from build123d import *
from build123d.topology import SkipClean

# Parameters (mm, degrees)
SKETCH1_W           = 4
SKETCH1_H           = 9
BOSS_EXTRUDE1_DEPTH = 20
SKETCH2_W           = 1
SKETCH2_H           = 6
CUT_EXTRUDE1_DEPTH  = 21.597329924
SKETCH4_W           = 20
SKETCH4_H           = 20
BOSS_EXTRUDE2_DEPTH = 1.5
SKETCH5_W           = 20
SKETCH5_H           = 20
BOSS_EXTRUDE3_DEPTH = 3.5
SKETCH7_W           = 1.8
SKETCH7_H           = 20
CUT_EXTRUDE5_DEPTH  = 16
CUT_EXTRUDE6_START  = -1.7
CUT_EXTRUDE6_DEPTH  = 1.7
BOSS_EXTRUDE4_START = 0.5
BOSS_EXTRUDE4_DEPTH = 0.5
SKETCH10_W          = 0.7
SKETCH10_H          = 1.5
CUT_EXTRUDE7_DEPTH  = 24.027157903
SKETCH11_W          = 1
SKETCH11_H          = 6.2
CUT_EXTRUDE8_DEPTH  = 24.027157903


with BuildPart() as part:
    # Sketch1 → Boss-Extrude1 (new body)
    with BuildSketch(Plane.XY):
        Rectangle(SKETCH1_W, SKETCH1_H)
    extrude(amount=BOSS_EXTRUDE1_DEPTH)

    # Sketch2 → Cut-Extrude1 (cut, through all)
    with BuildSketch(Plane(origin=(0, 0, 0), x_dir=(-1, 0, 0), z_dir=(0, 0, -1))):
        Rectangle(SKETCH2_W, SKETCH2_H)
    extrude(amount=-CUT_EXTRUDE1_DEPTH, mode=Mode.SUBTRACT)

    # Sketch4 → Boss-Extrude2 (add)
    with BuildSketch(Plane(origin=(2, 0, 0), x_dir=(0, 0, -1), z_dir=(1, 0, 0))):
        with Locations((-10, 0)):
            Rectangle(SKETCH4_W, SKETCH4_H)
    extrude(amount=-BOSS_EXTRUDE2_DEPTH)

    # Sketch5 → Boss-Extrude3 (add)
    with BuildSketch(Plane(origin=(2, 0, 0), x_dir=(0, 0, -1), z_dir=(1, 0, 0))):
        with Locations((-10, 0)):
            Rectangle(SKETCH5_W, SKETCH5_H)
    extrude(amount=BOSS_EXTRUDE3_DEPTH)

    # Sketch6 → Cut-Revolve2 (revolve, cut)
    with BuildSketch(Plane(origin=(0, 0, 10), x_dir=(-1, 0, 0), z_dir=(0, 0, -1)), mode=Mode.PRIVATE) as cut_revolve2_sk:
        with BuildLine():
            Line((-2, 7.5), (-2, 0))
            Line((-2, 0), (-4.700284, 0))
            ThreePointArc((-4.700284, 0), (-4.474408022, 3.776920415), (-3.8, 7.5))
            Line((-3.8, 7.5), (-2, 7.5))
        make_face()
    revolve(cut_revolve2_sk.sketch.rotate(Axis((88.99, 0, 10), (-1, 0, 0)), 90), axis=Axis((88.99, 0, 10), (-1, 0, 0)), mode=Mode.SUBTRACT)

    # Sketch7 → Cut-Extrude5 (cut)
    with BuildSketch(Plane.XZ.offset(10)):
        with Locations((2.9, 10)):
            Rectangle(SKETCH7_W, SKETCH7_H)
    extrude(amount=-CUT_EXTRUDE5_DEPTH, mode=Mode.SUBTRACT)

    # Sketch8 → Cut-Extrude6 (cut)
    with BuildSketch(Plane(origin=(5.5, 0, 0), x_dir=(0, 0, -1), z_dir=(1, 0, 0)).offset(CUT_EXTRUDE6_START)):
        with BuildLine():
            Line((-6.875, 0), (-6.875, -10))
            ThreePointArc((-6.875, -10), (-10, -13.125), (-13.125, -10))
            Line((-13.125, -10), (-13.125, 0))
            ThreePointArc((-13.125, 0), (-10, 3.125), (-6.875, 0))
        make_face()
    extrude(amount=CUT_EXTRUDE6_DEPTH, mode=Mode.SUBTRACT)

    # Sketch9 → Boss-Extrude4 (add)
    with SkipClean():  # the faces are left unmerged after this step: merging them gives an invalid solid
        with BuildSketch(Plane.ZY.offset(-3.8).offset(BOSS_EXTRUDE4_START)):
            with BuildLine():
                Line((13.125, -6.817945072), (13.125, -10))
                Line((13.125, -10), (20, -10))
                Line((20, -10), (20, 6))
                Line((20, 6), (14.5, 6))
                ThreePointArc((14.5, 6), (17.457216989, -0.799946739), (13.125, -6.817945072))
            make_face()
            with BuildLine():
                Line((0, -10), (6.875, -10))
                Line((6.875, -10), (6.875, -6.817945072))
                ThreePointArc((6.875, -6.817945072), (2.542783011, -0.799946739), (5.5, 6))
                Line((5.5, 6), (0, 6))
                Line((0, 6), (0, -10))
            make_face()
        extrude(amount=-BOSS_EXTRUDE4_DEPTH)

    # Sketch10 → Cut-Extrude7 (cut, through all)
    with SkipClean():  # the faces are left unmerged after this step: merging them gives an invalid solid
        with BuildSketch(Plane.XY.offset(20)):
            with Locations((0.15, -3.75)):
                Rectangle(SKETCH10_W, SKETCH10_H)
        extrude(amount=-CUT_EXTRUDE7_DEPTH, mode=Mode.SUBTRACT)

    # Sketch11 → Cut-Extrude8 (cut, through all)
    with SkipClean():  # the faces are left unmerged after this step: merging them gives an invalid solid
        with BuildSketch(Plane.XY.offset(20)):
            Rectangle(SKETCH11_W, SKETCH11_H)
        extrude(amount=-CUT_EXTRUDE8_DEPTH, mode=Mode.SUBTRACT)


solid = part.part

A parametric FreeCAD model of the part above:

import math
import FreeCAD as App
import Part
import Sketcher

doc = App.newDocument("Part")
params = doc.addObject("Spreadsheet::Sheet", "Params")
for row, (alias, value) in enumerate([
    ("sketch1_width", "4 mm"),
    ("sketch1_height", "9 mm"),
    ("pad1_length", "20 mm"),
    ("sketch2_width", "1 mm"),
    ("sketch2_height", "6 mm"),
    ("sketch3_width", "20 mm"),
    ("pad2_length", "1.5 mm"),
    ("sketch4_width", "20 mm"),
    ("pad3_length", "3.5 mm"),
    ("sketch5_width", "1.8 mm"),
    ("sketch5_height", "7.5 mm"),
    ("groove_angle", "360 deg"),
    ("sketch6_height", "20 mm"),
    ("sketch6_width", "1.8 mm"),
    ("pocket2_length", "16 mm"),
    ("sketch7_width", "10 mm"),
    ("pocket3_length", "1.7 mm"),
    ("sketch8_radius", "7.5 mm"),
    ("sketch8_width", "16 mm"),
    ("sketch8_height", "5.5 mm"),
    ("pad4_length", "0.5 mm"),
    ("sketch9_width", "0.7 mm"),
    ("sketch9_height", "1.5 mm"),
    ("sketch10_width", "1 mm"),
    ("sketch10_height", "6.2 mm"),
], start=1):
    params.set(f"A{row}", alias)
    params.set(f"B{row}", "=" + value)
    params.setAlias(f"B{row}", alias)

body = doc.addObject("PartDesign::Body", "Body")

# Sketch on XY plane
sketch1 = body.newObject("Sketcher::SketchObject", "Sketch")
sketch1.AttachmentSupport = (doc.getObject("XY_Plane"), [""])
sketch1.MapMode = "FlatFace"
sketch1.addGeometry([
    Part.LineSegment(App.Vector(-2, 4.5, 0), App.Vector(-2, -4.5, 0)),
    Part.LineSegment(App.Vector(-2, -4.5, 0), App.Vector(2, -4.5, 0)),
    Part.LineSegment(App.Vector(2, -4.5, 0), App.Vector(2, 4.5, 0)),
    Part.LineSegment(App.Vector(2, 4.5, 0), App.Vector(-2, 4.5, 0)),
], False)
sketch1.addConstraint([
    Sketcher.Constraint("Coincident", 0, 2, 1, 1),
    Sketcher.Constraint("Coincident", 1, 2, 2, 1),
    Sketcher.Constraint("Coincident", 2, 2, 3, 1),
    Sketcher.Constraint("Coincident", 3, 2, 0, 1),
    Sketcher.Constraint("Vertical", 0),
    Sketcher.Constraint("Horizontal", 1),
    Sketcher.Constraint("Vertical", 2),
    Sketcher.Constraint("Horizontal", 3),
    Sketcher.Constraint("Symmetric", 0, 2, 2, 2, -1, 1),
    Sketcher.Constraint("DistanceX", 1, 1, 1, 2, 4.0),
    Sketcher.Constraint("DistanceY", 0, 2, 0, 1, 9.0),
])
sketch1.setExpression("Constraints[9]", "Params.sketch1_width")
sketch1.setExpression("Constraints[10]", "Params.sketch1_height")
pad1 = body.newObject("PartDesign::Pad", "Pad")
pad1.Profile = sketch1
pad1.setExpression("Length", "Params.pad1_length")

# Sketch on XY plane
sketch2 = body.newObject("Sketcher::SketchObject", "Sketch001")
sketch2.AttachmentSupport = (doc.getObject("XY_Plane"), [""])
sketch2.MapMode = "FlatFace"
sketch2.addGeometry([
    Part.LineSegment(App.Vector(0.5, 3, 0), App.Vector(0.5, -3, 0)),
    Part.LineSegment(App.Vector(0.5, -3, 0), App.Vector(-0.5, -3, 0)),
    Part.LineSegment(App.Vector(-0.5, -3, 0), App.Vector(-0.5, 3, 0)),
    Part.LineSegment(App.Vector(-0.5, 3, 0), App.Vector(0.5, 3, 0)),
], False)
sketch2.addConstraint([
    Sketcher.Constraint("Coincident", 0, 2, 1, 1),
    Sketcher.Constraint("Coincident", 1, 2, 2, 1),
    Sketcher.Constraint("Coincident", 2, 2, 3, 1),
    Sketcher.Constraint("Coincident", 3, 2, 0, 1),
    Sketcher.Constraint("Vertical", 0),
    Sketcher.Constraint("Horizontal", 1),
    Sketcher.Constraint("Vertical", 2),
    Sketcher.Constraint("Horizontal", 3),
    Sketcher.Constraint("Symmetric", 0, 2, 2, 2, -1, 1),
    Sketcher.Constraint("DistanceX", 1, 2, 1, 1, 1.0),
    Sketcher.Constraint("DistanceY", 0, 2, 0, 1, 6.0),
])
sketch2.setExpression("Constraints[9]", "Params.sketch2_width")
sketch2.setExpression("Constraints[10]", "Params.sketch2_height")
pocket1 = body.newObject("PartDesign::Pocket", "Pocket")
pocket1.Profile = sketch2
pocket1.Type = "ThroughAll"
pocket1.Reversed = True

# Sketch on YZ plane
sketch3 = body.newObject("Sketcher::SketchObject", "Sketch002")
sketch3.AttachmentSupport = (doc.getObject("YZ_Plane"), [""])
sketch3.MapMode = "FlatFace"
sketch3.AttachmentOffset = App.Placement(App.Vector(0, 0, 2), App.Rotation())
sketch3.addGeometry([
    Part.LineSegment(App.Vector(10, 20, 0), App.Vector(-10, 20, 0)),
    Part.LineSegment(App.Vector(-10, 20, 0), App.Vector(-10, 0, 0)),
    Part.LineSegment(App.Vector(-10, 0, 0), App.Vector(10, 0, 0)),
    Part.LineSegment(App.Vector(10, 0, 0), App.Vector(10, 20, 0)),
], False)
sketch3.addConstraint([
    Sketcher.Constraint("Coincident", 0, 2, 1, 1),
    Sketcher.Constraint("Coincident", 1, 2, 2, 1),
    Sketcher.Constraint("Coincident", 2, 2, 3, 1),
    Sketcher.Constraint("Coincident", 3, 2, 0, 1),
    Sketcher.Constraint("Horizontal", 0),
    Sketcher.Constraint("Vertical", 1),
    Sketcher.Constraint("Horizontal", 2),
    Sketcher.Constraint("Vertical", 3),
    Sketcher.Constraint("Symmetric", 1, 2, 2, 2, -1, 1),
    Sketcher.Constraint("Equal", 2, 1),
    Sketcher.Constraint("DistanceX", 0, 2, 0, 1, 20.0),
])
sketch3.setExpression("Constraints[10]", "Params.sketch3_width")
pad2 = body.newObject("PartDesign::Pad", "Pad001")
pad2.Profile = sketch3
pad2.setExpression("Length", "Params.pad2_length")
pad2.Reversed = True

# Sketch on YZ plane
sketch4 = body.newObject("Sketcher::SketchObject", "Sketch003")
sketch4.AttachmentSupport = (doc.getObject("YZ_Plane"), [""])
sketch4.MapMode = "FlatFace"
sketch4.AttachmentOffset = App.Placement(App.Vector(0, 0, 2), App.Rotation())
sketch4.addGeometry([
    Part.LineSegment(App.Vector(10, 20, 0), App.Vector(-10, 20, 0)),
    Part.LineSegment(App.Vector(-10, 20, 0), App.Vector(-10, 0, 0)),
    Part.LineSegment(App.Vector(-10, 0, 0), App.Vector(10, 0, 0)),
    Part.LineSegment(App.Vector(10, 0, 0), App.Vector(10, 20, 0)),
], False)
sketch4.addConstraint([
    Sketcher.Constraint("Coincident", 0, 2, 1, 1),
    Sketcher.Constraint("Coincident", 1, 2, 2, 1),
    Sketcher.Constraint("Coincident", 2, 2, 3, 1),
    Sketcher.Constraint("Coincident", 3, 2, 0, 1),
    Sketcher.Constraint("Horizontal", 0),
    Sketcher.Constraint("Vertical", 1),
    Sketcher.Constraint("Horizontal", 2),
    Sketcher.Constraint("Vertical", 3),
    Sketcher.Constraint("Symmetric", 1, 2, 2, 2, -1, 1),
    Sketcher.Constraint("Equal", 2, 1),
    Sketcher.Constraint("DistanceX", 0, 2, 0, 1, 20.0),
])
sketch4.setExpression("Constraints[10]", "Params.sketch4_width")
pad3 = body.newObject("PartDesign::Pad", "Pad002")
pad3.Profile = sketch4
pad3.setExpression("Length", "Params.pad3_length")

# Sketch on XY plane
sketch5 = body.newObject("Sketcher::SketchObject", "Sketch004")
sketch5.AttachmentSupport = (doc.getObject("XY_Plane"), [""])
sketch5.MapMode = "FlatFace"
sketch5.AttachmentOffset = App.Placement(App.Vector(0, 0, 10), App.Rotation())
sketch5.addGeometry([
    Part.LineSegment(App.Vector(2, 0, 0), App.Vector(2, 7.5, 0)),
    Part.LineSegment(App.Vector(2, 7.5, 0), App.Vector(3.8, 7.5, 0)),
    Part.ArcOfCircle(Part.Circle(App.Vector(-27, 0, 0), App.Vector(0, 0, 1), 31.7), math.radians(0), math.radians(13.69)),
    Part.LineSegment(App.Vector(4.7, 0, 0), App.Vector(2, 0, 0)),
], False)
sketch5.addConstraint([
    Sketcher.Constraint("Coincident", 0, 2, 1, 1),
    Sketcher.Constraint("Coincident", 1, 2, 2, 2),
    Sketcher.Constraint("Coincident", 2, 1, 3, 1),
    Sketcher.Constraint("Coincident", 3, 2, 0, 1),
    Sketcher.Constraint("Vertical", 0),
    Sketcher.Constraint("Horizontal", 1),
    Sketcher.Constraint("Horizontal", 3),
    Sketcher.Constraint("PointOnObject", 2, 3, -1),
    Sketcher.Constraint("PointOnObject", 2, 1, -1),
    Sketcher.Constraint("DistanceX", 1, 1, 1, 2, 1.8),
    Sketcher.Constraint("DistanceY", 0, 1, 0, 2, 7.5),
    Sketcher.Constraint("DistanceX", -1, 1, 0, 2, 2.0),
    Sketcher.Constraint("DistanceX", 2, 3, -1, 1, 26.99),
])
sketch5.setExpression("Constraints[9]", "Params.sketch5_width")
sketch5.setExpression("Constraints[10]", "Params.sketch5_height")
groove = body.newObject("PartDesign::Groove", "Groove")
groove.Profile = sketch5
groove.ReferenceAxis = (sketch5, ["H_Axis"])
groove.setExpression("Angle", "Params.groove_angle")

# Sketch on XZ plane
sketch6 = body.newObject("Sketcher::SketchObject", "Sketch005")
sketch6.AttachmentSupport = (doc.getObject("XZ_Plane"), [""])
sketch6.MapMode = "FlatFace"
sketch6.AttachmentOffset = App.Placement(App.Vector(0, 0, 10), App.Rotation())
sketch6.addGeometry([
    Part.LineSegment(App.Vector(2, 20, 0), App.Vector(2, 0, 0)),
    Part.LineSegment(App.Vector(2, 0, 0), App.Vector(3.8, 0, 0)),
    Part.LineSegment(App.Vector(3.8, 0, 0), App.Vector(3.8, 20, 0)),
    Part.LineSegment(App.Vector(3.8, 20, 0), App.Vector(2, 20, 0)),
], False)
sketch6.addConstraint([
    Sketcher.Constraint("Coincident", 0, 2, 1, 1),
    Sketcher.Constraint("Coincident", 1, 2, 2, 1),
    Sketcher.Constraint("Coincident", 2, 2, 3, 1),
    Sketcher.Constraint("Coincident", 3, 2, 0, 1),
    Sketcher.Constraint("Vertical", 0),
    Sketcher.Constraint("Horizontal", 1),
    Sketcher.Constraint("Vertical", 2),
    Sketcher.Constraint("Horizontal", 3),
    Sketcher.Constraint("PointOnObject", 0, 2, -1),
    Sketcher.Constraint("DistanceY", 0, 2, 0, 1, 20.0),
    Sketcher.Constraint("DistanceX", 1, 1, 1, 2, 1.8),
    Sketcher.Constraint("DistanceX", -1, 1, 0, 2, 2.0),
])
sketch6.setExpression("Constraints[9]", "Params.sketch6_height")
sketch6.setExpression("Constraints[10]", "Params.sketch6_width")
pocket2 = body.newObject("PartDesign::Pocket", "Pocket001")
pocket2.Profile = sketch6
pocket2.setExpression("Length", "Params.pocket2_length")

# Sketch on YZ plane
sketch7 = body.newObject("Sketcher::SketchObject", "Sketch006")
sketch7.AttachmentSupport = (doc.getObject("YZ_Plane"), [""])
sketch7.MapMode = "FlatFace"
sketch7.AttachmentOffset = App.Placement(App.Vector(0, 0, 3.8), App.Rotation())
sketch7.addGeometry([
    Part.LineSegment(App.Vector(-10, 6.9, 0), App.Vector(0, 6.9, 0)),
    Part.ArcOfCircle(Part.Circle(App.Vector(0, 10, 0), App.Vector(0, 0, 1), 3.1), math.radians(-90), math.radians(90)),
    Part.LineSegment(App.Vector(0, 13.1, 0), App.Vector(-10, 13.1, 0)),
    Part.ArcOfCircle(Part.Circle(App.Vector(-10, 10, 0), App.Vector(0, 0, 1), 3.1), math.radians(90), math.radians(270)),
], False)
sketch7.addConstraint([
    Sketcher.Constraint("Tangent", 0, 2, 1, 1),
    Sketcher.Constraint("Tangent", 1, 2, 2, 1),
    Sketcher.Constraint("Tangent", 2, 2, 3, 1),
    Sketcher.Constraint("Tangent", 3, 2, 0, 1),
    Sketcher.Constraint("Horizontal", 0),
    Sketcher.Constraint("Horizontal", 2),
    Sketcher.Constraint("PointOnObject", 1, 3, -2),
    Sketcher.Constraint("DistanceX", 0, 1, 0, 2, 10.0),
    Sketcher.Constraint("DistanceY", -1, 1, 1, 3, 10.0),
    Sketcher.Constraint("Radius", 1, 3.125),
])
sketch7.setExpression("Constraints[7]", "Params.sketch7_width")
pocket3 = body.newObject("PartDesign::Pocket", "Pocket002")
pocket3.Profile = sketch7
pocket3.setExpression("Length", "Params.pocket3_length")
pocket3.Reversed = True

# Sketch on YZ plane
sketch8 = body.newObject("Sketcher::SketchObject", "Sketch007")
sketch8.AttachmentSupport = (doc.getObject("YZ_Plane"), [""])
sketch8.MapMode = "FlatFace"
sketch8.AttachmentOffset = App.Placement(App.Vector(0, 0, 3.3), App.Rotation())
sketch8.addGeometry([
    Part.LineSegment(App.Vector(-6.8, 13.1, 0), App.Vector(-10, 13.1, 0)),  # 0
    Part.LineSegment(App.Vector(-10, 13.1, 0), App.Vector(-10, 20, 0)),  # 1
    Part.LineSegment(App.Vector(-10, 20, 0), App.Vector(6, 20, 0)),  # 2
    Part.LineSegment(App.Vector(6, 20, 0), App.Vector(6, 14.5, 0)),  # 3
    Part.ArcOfCircle(Part.Circle(App.Vector(0, 10, 0), App.Vector(0, 0, 1), 7.5), math.radians(37), math.radians(155)),  # 4
    Part.LineSegment(App.Vector(-10, 0, 0), App.Vector(-10, 6.9, 0)),  # 5
    Part.LineSegment(App.Vector(-10, 6.9, 0), App.Vector(-6.8, 6.9, 0)),  # 6
    Part.ArcOfCircle(Part.Circle(App.Vector(0, 10, 0), App.Vector(0, 0, 1), 7.5), math.radians(-155), math.radians(-37)),  # 7
    Part.LineSegment(App.Vector(6, 5.5, 0), App.Vector(6, 0, 0)),  # 8
    Part.LineSegment(App.Vector(6, 0, 0), App.Vector(-10, 0, 0)),  # 9
], False)
sketch8.addConstraint([
    Sketcher.Constraint("Coincident", 0, 2, 1, 1),
    Sketcher.Constraint("Coincident", 1, 2, 2, 1),
    Sketcher.Constraint("Coincident", 2, 2, 3, 1),
    Sketcher.Constraint("Coincident", 3, 2, 4, 1),
    Sketcher.Constraint("Coincident", 4, 2, 0, 1),
    Sketcher.Constraint("Coincident", 5, 2, 6, 1),
    Sketcher.Constraint("Coincident", 6, 2, 7, 1),
    Sketcher.Constraint("Coincident", 7, 2, 8, 1),
    Sketcher.Constraint("Coincident", 8, 2, 9, 1),
    Sketcher.Constraint("Coincident", 9, 2, 5, 1),
    Sketcher.Constraint("Horizontal", 0),
    Sketcher.Constraint("Vertical", 1),
    Sketcher.Constraint("Horizontal", 2),
    Sketcher.Constraint("Vertical", 3),
    Sketcher.Constraint("Vertical", 5),
    Sketcher.Constraint("Horizontal", 6),
    Sketcher.Constraint("Vertical", 8),
    Sketcher.Constraint("Horizontal", 9),
    Sketcher.Constraint("Coincident", 7, 3, 4, 3),
    Sketcher.Constraint("Equal", 4, 7),
    Sketcher.Constraint("PointOnObject", 4, 3, -2),
    Sketcher.Constraint("PointOnObject", 8, 2, -1),
    Sketcher.Constraint("Vertical", 1, 2, 5, 2),
    Sketcher.Constraint("Vertical", 4, 2, 6, 2),
    Sketcher.Constraint("Vertical", 3, 2, 7, 2),
    Sketcher.Constraint("Equal", 1, 5),
    Sketcher.Constraint("Radius", 4, 7.5),
    Sketcher.Constraint("DistanceX", 2, 1, 2, 2, 16.0),
    Sketcher.Constraint("DistanceY", 3, 2, 3, 1, 5.5),
    Sketcher.Constraint("DistanceY", -1, 1, 4, 3, 10.0),
    Sketcher.Constraint("DistanceY", 1, 1, 1, 2, 6.875),
])
sketch8.setExpression("Constraints[26]", "Params.sketch8_radius")
sketch8.setExpression("Constraints[27]", "Params.sketch8_width")
sketch8.setExpression("Constraints[28]", "Params.sketch8_height")
pad4 = body.newObject("PartDesign::Pad", "Pad003")
pad4.Profile = sketch8
pad4.setExpression("Length", "Params.pad4_length")

# Sketch on XY plane
sketch9 = body.newObject("Sketcher::SketchObject", "Sketch008")
sketch9.AttachmentSupport = (doc.getObject("XY_Plane"), [""])
sketch9.MapMode = "FlatFace"
sketch9.AttachmentOffset = App.Placement(App.Vector(0, 0, 20), App.Rotation())
sketch9.addGeometry([
    Part.LineSegment(App.Vector(-0.2, -3, 0), App.Vector(-0.2, -4.5, 0)),
    Part.LineSegment(App.Vector(-0.2, -4.5, 0), App.Vector(0.5, -4.5, 0)),
    Part.LineSegment(App.Vector(0.5, -4.5, 0), App.Vector(0.5, -3, 0)),
    Part.LineSegment(App.Vector(0.5, -3, 0), App.Vector(-0.2, -3, 0)),
], False)
sketch9.addConstraint([
    Sketcher.Constraint("Coincident", 0, 2, 1, 1),
    Sketcher.Constraint("Coincident", 1, 2, 2, 1),
    Sketcher.Constraint("Coincident", 2, 2, 3, 1),
    Sketcher.Constraint("Coincident", 3, 2, 0, 1),
    Sketcher.Constraint("Vertical", 0),
    Sketcher.Constraint("Horizontal", 1),
    Sketcher.Constraint("Vertical", 2),
    Sketcher.Constraint("Horizontal", 3),
    Sketcher.Constraint("DistanceX", 1, 1, 1, 2, 0.7),
    Sketcher.Constraint("DistanceY", 0, 2, 0, 1, 1.5),
    Sketcher.Constraint("DistanceY", 2, 2, -1, 1, 3.0),
    Sketcher.Constraint("DistanceX", 0, 2, -1, 1, 0.2),
])
sketch9.setExpression("Constraints[8]", "Params.sketch9_width")
sketch9.setExpression("Constraints[9]", "Params.sketch9_height")
pocket4 = body.newObject("PartDesign::Pocket", "Pocket003")
pocket4.Profile = sketch9
pocket4.Type = "ThroughAll"

# Sketch on XY plane
sketch10 = body.newObject("Sketcher::SketchObject", "Sketch009")
sketch10.AttachmentSupport = (doc.getObject("XY_Plane"), [""])
sketch10.MapMode = "FlatFace"
sketch10.AttachmentOffset = App.Placement(App.Vector(0, 0, 20), App.Rotation())
sketch10.addGeometry([
    Part.LineSegment(App.Vector(-0.5, 3.1, 0), App.Vector(-0.5, -3.1, 0)),
    Part.LineSegment(App.Vector(-0.5, -3.1, 0), App.Vector(0.5, -3.1, 0)),
    Part.LineSegment(App.Vector(0.5, -3.1, 0), App.Vector(0.5, 3.1, 0)),
    Part.LineSegment(App.Vector(0.5, 3.1, 0), App.Vector(-0.5, 3.1, 0)),
], False)
sketch10.addConstraint([
    Sketcher.Constraint("Coincident", 0, 2, 1, 1),
    Sketcher.Constraint("Coincident", 1, 2, 2, 1),
    Sketcher.Constraint("Coincident", 2, 2, 3, 1),
    Sketcher.Constraint("Coincident", 3, 2, 0, 1),
    Sketcher.Constraint("Vertical", 0),
    Sketcher.Constraint("Horizontal", 1),
    Sketcher.Constraint("Vertical", 2),
    Sketcher.Constraint("Horizontal", 3),
    Sketcher.Constraint("Symmetric", 0, 2, 2, 2, -1, 1),
    Sketcher.Constraint("DistanceX", 1, 1, 1, 2, 1.0),
    Sketcher.Constraint("DistanceY", 0, 2, 0, 1, 6.2),
])
sketch10.setExpression("Constraints[9]", "Params.sketch10_width")
sketch10.setExpression("Constraints[10]", "Params.sketch10_height")
pocket5 = body.newObject("PartDesign::Pocket", "Pocket004")
pocket5.Profile = sketch10
pocket5.Type = "ThroughAll"

doc.recompute()
